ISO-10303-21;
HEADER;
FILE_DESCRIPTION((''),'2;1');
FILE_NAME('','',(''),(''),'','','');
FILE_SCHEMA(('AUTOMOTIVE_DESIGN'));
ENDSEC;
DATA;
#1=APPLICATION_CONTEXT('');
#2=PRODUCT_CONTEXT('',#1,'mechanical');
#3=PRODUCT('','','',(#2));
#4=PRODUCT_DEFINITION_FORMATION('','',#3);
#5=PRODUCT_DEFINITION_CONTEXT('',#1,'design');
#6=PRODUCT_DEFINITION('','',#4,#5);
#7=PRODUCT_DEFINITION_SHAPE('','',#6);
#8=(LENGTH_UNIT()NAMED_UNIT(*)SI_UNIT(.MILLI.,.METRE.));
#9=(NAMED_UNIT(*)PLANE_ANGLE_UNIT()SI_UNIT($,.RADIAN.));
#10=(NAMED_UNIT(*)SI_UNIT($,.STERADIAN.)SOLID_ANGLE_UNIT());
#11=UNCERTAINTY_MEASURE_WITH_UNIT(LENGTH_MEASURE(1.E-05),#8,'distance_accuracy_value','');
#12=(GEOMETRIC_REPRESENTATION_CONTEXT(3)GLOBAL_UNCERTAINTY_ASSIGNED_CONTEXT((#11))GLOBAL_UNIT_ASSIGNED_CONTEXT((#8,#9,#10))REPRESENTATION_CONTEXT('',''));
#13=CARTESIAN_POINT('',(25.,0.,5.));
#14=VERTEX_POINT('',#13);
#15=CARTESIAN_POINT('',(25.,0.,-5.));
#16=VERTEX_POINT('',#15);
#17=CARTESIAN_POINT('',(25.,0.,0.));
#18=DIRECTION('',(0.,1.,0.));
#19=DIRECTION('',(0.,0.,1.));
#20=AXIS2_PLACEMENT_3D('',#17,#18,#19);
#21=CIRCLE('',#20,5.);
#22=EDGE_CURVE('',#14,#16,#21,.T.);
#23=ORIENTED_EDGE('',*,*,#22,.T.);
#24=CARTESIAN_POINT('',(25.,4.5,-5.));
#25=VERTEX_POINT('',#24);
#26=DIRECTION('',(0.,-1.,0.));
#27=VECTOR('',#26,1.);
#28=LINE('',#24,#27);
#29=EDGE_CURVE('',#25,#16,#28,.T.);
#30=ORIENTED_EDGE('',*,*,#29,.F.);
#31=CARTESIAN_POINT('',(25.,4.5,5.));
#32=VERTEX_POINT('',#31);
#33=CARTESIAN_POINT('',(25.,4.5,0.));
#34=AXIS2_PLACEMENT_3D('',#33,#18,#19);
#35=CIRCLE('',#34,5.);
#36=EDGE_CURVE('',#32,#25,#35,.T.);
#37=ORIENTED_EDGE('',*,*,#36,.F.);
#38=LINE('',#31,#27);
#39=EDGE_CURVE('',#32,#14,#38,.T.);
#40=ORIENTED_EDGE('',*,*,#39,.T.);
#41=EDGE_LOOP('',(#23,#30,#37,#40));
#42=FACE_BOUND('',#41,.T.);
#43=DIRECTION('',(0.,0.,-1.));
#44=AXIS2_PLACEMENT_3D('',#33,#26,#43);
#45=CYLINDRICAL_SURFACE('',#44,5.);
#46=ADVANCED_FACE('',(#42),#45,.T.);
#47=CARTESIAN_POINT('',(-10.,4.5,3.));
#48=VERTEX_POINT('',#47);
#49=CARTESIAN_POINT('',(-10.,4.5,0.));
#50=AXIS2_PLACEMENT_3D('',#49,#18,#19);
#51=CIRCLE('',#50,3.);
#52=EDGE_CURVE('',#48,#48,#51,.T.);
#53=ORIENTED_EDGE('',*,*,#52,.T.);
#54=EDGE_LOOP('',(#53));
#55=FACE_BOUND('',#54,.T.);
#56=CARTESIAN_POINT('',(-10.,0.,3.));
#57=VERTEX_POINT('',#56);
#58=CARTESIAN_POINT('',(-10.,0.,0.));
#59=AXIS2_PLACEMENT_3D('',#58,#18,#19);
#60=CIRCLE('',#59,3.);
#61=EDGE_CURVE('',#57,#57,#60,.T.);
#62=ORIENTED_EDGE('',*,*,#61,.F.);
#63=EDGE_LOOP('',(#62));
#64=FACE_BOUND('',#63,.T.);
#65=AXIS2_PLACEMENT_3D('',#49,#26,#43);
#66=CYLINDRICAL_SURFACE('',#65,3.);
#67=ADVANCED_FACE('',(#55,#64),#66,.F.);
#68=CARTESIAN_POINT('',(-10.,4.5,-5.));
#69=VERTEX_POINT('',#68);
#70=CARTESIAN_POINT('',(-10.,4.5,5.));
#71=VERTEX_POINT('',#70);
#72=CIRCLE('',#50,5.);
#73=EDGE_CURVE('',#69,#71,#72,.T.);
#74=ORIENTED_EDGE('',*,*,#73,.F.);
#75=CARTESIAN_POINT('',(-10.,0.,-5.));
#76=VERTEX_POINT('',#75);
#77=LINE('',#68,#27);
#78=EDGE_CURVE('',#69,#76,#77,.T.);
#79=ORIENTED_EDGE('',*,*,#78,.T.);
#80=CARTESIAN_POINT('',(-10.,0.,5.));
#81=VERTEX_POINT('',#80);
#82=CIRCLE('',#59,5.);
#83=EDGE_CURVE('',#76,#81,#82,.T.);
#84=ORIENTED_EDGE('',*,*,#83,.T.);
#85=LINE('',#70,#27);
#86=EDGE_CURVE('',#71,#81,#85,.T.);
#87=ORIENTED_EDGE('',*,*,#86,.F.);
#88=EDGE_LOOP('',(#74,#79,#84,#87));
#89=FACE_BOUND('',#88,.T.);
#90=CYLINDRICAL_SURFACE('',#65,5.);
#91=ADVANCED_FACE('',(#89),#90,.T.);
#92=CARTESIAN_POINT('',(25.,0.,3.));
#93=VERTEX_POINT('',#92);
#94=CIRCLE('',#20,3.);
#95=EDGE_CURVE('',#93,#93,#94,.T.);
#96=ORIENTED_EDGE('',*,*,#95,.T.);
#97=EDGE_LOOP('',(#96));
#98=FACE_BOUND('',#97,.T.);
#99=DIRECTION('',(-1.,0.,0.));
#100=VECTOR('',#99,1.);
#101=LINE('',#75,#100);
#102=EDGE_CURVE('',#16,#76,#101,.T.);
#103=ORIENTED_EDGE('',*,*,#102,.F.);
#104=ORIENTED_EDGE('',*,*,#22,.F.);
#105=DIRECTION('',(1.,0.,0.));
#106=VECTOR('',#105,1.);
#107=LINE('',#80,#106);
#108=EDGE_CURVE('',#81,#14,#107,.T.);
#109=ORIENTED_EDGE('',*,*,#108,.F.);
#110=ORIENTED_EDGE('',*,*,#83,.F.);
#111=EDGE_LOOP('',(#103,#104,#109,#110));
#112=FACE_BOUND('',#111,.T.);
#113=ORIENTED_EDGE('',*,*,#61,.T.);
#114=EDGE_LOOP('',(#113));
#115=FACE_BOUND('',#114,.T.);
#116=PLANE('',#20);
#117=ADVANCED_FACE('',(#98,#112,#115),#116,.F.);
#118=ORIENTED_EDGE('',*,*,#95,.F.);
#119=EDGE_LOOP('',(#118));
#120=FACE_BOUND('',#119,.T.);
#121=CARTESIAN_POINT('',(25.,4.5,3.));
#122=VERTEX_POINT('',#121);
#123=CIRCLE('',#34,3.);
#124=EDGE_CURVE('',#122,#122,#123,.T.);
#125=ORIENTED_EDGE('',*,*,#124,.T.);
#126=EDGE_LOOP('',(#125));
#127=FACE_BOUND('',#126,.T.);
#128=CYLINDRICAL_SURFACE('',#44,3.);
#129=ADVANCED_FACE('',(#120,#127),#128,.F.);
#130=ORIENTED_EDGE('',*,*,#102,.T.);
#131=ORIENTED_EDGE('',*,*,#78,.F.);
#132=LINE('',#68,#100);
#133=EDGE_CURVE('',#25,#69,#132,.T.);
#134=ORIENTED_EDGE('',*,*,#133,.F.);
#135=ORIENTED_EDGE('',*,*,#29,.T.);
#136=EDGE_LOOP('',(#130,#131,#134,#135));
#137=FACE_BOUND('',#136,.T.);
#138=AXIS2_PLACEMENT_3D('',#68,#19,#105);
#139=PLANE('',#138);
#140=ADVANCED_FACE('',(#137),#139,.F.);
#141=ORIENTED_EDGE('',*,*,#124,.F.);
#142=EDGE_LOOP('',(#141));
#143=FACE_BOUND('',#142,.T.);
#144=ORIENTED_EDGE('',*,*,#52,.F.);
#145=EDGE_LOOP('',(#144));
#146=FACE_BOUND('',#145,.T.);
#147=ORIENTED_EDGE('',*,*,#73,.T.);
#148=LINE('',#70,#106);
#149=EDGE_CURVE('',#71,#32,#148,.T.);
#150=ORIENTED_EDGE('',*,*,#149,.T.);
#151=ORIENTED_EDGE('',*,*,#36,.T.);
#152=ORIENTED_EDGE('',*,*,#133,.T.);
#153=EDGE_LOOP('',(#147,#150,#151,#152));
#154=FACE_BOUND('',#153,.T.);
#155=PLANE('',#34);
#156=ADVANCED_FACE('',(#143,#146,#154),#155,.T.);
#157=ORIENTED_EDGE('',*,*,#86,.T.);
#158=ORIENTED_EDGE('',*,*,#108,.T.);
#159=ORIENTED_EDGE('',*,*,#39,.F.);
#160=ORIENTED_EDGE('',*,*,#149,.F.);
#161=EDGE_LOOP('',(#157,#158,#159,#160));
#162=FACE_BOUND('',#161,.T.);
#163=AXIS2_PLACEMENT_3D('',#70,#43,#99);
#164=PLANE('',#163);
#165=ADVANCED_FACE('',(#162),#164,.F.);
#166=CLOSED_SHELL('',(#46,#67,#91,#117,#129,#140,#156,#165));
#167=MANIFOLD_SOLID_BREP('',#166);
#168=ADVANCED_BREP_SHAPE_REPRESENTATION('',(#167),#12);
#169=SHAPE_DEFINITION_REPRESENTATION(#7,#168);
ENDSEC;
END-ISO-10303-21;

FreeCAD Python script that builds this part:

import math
import FreeCAD as App
import Part
import Sketcher

V = App.Vector
Q = App.Units.Quantity

doc = App.newDocument("Part")
body = doc.addObject("PartDesign::Body", "Body")

# Sketch on XZ plane
sketch1 = doc.addObject("Sketcher::SketchObject", "Sketch")
body.addObject(sketch1)
sketch1.AttachmentSupport = (doc.XZ_Plane, [""])
sketch1.MapMode = "FlatFace"
sketch1.addGeometry(Part.LineSegment(V(25, -5, 0), V(-10, -5, 0)), False)
sketch1.addGeometry(Part.ArcOfCircle(Part.Circle(V(-10, 0, 0), V(0, 0, 1), 5), math.radians(90), math.radians(270)), False)
sketch1.addGeometry(Part.LineSegment(V(-10, 5, 0), V(25, 5, 0)), False)
sketch1.addGeometry(Part.ArcOfCircle(Part.Circle(V(25, 0, 0), V(0, 0, 1), 5), math.radians(-90), math.radians(90)), False)
sketch1.addGeometry(Part.Circle(V(25, 0, 0), V(0, 0, 1), 3), False)
sketch1.addGeometry(Part.Circle(V(-10, 0, 0), V(0, 0, 1), 3), False)
sketch1.addConstraint(Sketcher.Constraint("Tangent", 0, 2, 1, 2))
sketch1.addConstraint(Sketcher.Constraint("Tangent", 1, 1, 2, 1))
sketch1.addConstraint(Sketcher.Constraint("Tangent", 2, 2, 3, 2))
sketch1.addConstraint(Sketcher.Constraint("Tangent", 3, 1, 0, 1))
sketch1.addConstraint(Sketcher.Constraint("Horizontal", 0))
sketch1.addConstraint(Sketcher.Constraint("Horizontal", 2))
sketch1.addConstraint(Sketcher.Constraint("Coincident", 4, 3, 3, 3))
sketch1.addConstraint(Sketcher.Constraint("Coincident", 5, 3, 1, 3))
sketch1.addConstraint(Sketcher.Constraint("Equal", 4, 5))
sketch1.addConstraint(Sketcher.Constraint("PointOnObject", 1, 3, -1))
sketch1.addConstraint(Sketcher.Constraint("Diameter", 4, Q("6 mm")))
sketch1.addConstraint(Sketcher.Constraint("Radius", 1, Q("5 mm")))
sketch1.addConstraint(Sketcher.Constraint("DistanceX", 0, 2, 0, 1, Q("35 mm")))
sketch1.addConstraint(Sketcher.Constraint("DistanceX", 1, 3, -1, 1, Q("10 mm")))
pad1 = doc.addObject("PartDesign::Pad", "Pad")
body.addObject(pad1)
pad1.Profile = sketch1
pad1.Length = 4.5
pad1.Reversed = True

doc.recompute()
